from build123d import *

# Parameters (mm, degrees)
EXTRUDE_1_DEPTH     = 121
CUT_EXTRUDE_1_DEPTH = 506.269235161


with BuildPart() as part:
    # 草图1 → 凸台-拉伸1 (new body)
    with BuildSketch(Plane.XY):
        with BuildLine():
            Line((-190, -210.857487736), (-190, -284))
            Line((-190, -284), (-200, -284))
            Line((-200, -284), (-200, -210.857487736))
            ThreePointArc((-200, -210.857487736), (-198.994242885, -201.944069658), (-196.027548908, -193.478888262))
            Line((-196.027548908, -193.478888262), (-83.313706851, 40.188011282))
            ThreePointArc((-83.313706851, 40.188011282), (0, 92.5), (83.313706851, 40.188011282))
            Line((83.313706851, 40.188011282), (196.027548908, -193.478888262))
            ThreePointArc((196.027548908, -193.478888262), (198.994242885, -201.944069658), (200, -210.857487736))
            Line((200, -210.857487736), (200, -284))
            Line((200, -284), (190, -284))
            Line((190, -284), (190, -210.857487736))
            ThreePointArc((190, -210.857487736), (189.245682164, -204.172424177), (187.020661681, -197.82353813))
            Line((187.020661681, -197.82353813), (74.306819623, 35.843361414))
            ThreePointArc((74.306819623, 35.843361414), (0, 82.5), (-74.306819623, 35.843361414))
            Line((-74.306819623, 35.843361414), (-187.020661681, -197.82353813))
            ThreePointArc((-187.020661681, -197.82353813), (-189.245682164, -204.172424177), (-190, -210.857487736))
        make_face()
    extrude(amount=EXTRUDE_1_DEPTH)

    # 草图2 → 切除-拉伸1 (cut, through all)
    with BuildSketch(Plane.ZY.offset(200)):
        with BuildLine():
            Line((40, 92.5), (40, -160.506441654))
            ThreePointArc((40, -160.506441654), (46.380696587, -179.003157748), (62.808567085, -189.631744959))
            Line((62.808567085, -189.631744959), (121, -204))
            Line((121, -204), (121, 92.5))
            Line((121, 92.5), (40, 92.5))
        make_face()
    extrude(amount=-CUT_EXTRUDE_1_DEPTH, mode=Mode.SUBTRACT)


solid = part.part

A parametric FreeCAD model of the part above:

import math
import FreeCAD as App
import Part
import Sketcher
from FreeCAD import Vector

doc = App.newDocument("Part")
body = doc.addObject("PartDesign::Body", "Body")

# Sketch on XY plane
sketch1 = body.newObject("Sketcher::SketchObject", "Sketch")
sketch1.AttachmentSupport = (doc.getObject("XY_Plane"), [""])
sketch1.MapMode = "FlatFace"
sketch1.addGeometry(Part.LineSegment(Vector(-190, -284, 0), Vector(-190, -210.857488, 0)), False)
sketch1.addGeometry(Part.ArcOfCircle(Part.Circle(Vector(-160, -210.857488, 0), Vector(0, 0, 1), 30), math.radians(154.248745), math.radians(180)), False)
sketch1.addGeometry(Part.LineSegment(Vector(-187.020662, -197.823538, 0), Vector(-74.30682, 35.843361, 0)), False)
sketch1.addGeometry(Part.ArcOfCircle(Part.Circle(Vector(0, 0, 0), Vector(0, 0, 1), 82.5), math.radians(25.751255), math.radians(154.248745)), False)
sketch1.addGeometry(Part.LineSegment(Vector(74.30682, 35.843361, 0), Vector(187.020662, -197.823538, 0)), False)
sketch1.addGeometry(Part.ArcOfCircle(Part.Circle(Vector(160, -210.857488, 0), Vector(0, 0, 1), 30), math.radians(0), math.radians(25.751255)), False)
sketch1.addGeometry(Part.LineSegment(Vector(190, -210.857488, 0), Vector(190, -284, 0)), False)
sketch1.addGeometry(Part.LineSegment(Vector(190, -284, 0), Vector(200, -284, 0)), False)
sketch1.addGeometry(Part.LineSegment(Vector(200, -284, 0), Vector(200, -210.857488, 0)), False)
sketch1.addGeometry(Part.ArcOfCircle(Part.Circle(Vector(160, -210.857488, 0), Vector(0, 0, 1), 40), math.radians(0), math.radians(25.751255)), False)
sketch1.addGeometry(Part.LineSegment(Vector(196.027549, -193.478888, 0), Vector(83.313707, 40.188011, 0)), False)
sketch1.addGeometry(Part.ArcOfCircle(Part.Circle(Vector(0, 0, 0), Vector(0, 0, 1), 92.5), math.radians(25.751255), math.radians(154.248745)), False)
sketch1.addGeometry(Part.LineSegment(Vector(-83.313707, 40.188011, 0), Vector(-196.027549, -193.478888, 0)), False)
sketch1.addGeometry(Part.ArcOfCircle(Part.Circle(Vector(-160, -210.857488, 0), Vector(0, 0, 1), 40), math.radians(154.248745), math.radians(180)), False)
sketch1.addGeometry(Part.LineSegment(Vector(-200, -210.857488, 0), Vector(-200, -284, 0)), False)
sketch1.addGeometry(Part.LineSegment(Vector(-200, -284, 0), Vector(-190, -284, 0)), False)
sketch1.addConstraint(Sketcher.Constraint("Tangent", 0, 2, 1, 2))
sketch1.addConstraint(Sketcher.Constraint("Tangent", 1, 1, 2, 1))
sketch1.addConstraint(Sketcher.Constraint("Tangent", 2, 2, 3, 2))
sketch1.addConstraint(Sketcher.Constraint("Tangent", 3, 1, 4, 1))
sketch1.addConstraint(Sketcher.Constraint("Tangent", 4, 2, 5, 2))
sketch1.addConstraint(Sketcher.Constraint("Tangent", 5, 1, 6, 1))
sketch1.addConstraint(Sketcher.Constraint("Coincident", 6, 2, 7, 1))
sketch1.addConstraint(Sketcher.Constraint("Coincident", 7, 2, 8, 1))
sketch1.addConstraint(Sketcher.Constraint("Tangent", 8, 2, 9, 1))
sketch1.addConstraint(Sketcher.Constraint("Tangent", 9, 2, 10, 1))
sketch1.addConstraint(Sketcher.Constraint("Tangent", 10, 2, 11, 1))
sketch1.addConstraint(Sketcher.Constraint("Tangent", 11, 2, 12, 1))
sketch1.addConstraint(Sketcher.Constraint("Tangent", 12, 2, 13, 1))
sketch1.addConstraint(Sketcher.Constraint("Tangent", 13, 2, 14, 1))
sketch1.addConstraint(Sketcher.Constraint("Coincident", 14, 2, 15, 1))
sketch1.addConstraint(Sketcher.Constraint("Coincident", 15, 2, 0, 1))
sketch1.addConstraint(Sketcher.Constraint("Vertical", 0))
sketch1.addConstraint(Sketcher.Constraint("Vertical", 6))
sketch1.addConstraint(Sketcher.Constraint("Horizontal", 7))
sketch1.addConstraint(Sketcher.Constraint("Vertical", 8))
sketch1.addConstraint(Sketcher.Constraint("Vertical", 14))
sketch1.addConstraint(Sketcher.Constraint("Horizontal", 15))
sketch1.addConstraint(Sketcher.Constraint("Coincident", 3, 3, -1, 1))
sketch1.addConstraint(Sketcher.Constraint("Coincident", 11, 3, -1, 1))
sketch1.addConstraint(Sketcher.Constraint("Coincident", 9, 3, 5, 3))
sketch1.addConstraint(Sketcher.Constraint("Coincident", 13, 3, 1, 3))
sketch1.addConstraint(Sketcher.Constraint("Equal", 1, 5))
sketch1.addConstraint(Sketcher.Constraint("Equal", 9, 13))
sketch1.addConstraint(Sketcher.Constraint("Symmetric", 1, 3, 5, 3, -2))
sketch1.addConstraint(Sketcher.Constraint("Parallel", 4, 10))
sketch1.addConstraint(Sketcher.Constraint("Horizontal", 7, 2, 14, 2))
sketch1.addConstraint(Sketcher.Constraint("Radius", 1, 30.0))
sketch1.addConstraint(Sketcher.Constraint("Radius", 9, 40.0))
sketch1.addConstraint(Sketcher.Constraint("Radius", 3, 82.5))
sketch1.addConstraint(Sketcher.Constraint("DistanceX", 1, 3, -1, 1, 160.0))
sketch1.addConstraint(Sketcher.Constraint("DistanceY", 6, 2, -1, 1, 284.0))
sketch1.addConstraint(Sketcher.Constraint("DistanceY", 1, 1, 2, 2, 233.6669))
pad1 = body.newObject("PartDesign::Pad", "Pad")
pad1.Profile = sketch1
pad1.Length = 121

# Sketch on YZ plane
sketch2 = body.newObject("Sketcher::SketchObject", "Sketch001")
sketch2.AttachmentSupport = (doc.getObject("YZ_Plane"), [""])
sketch2.MapMode = "FlatFace"
sketch2.AttachmentOffset = App.Placement(Vector(0, 0, -200), App.Rotation())
sketch2.addGeometry(Part.LineSegment(Vector(92.5, 40, 0), Vector(-160.506442, 40, 0)), False)
sketch2.addGeometry(Part.ArcOfCircle(Part.Circle(Vector(-160.506442, 70, 0), Vector(0, 0, 1), 30), math.radians(-166.130314), math.radians(-90)), False)
sketch2.addGeometry(Part.LineSegment(Vector(-189.631745, 62.808567, 0), Vector(-204, 121, 0)), False)
sketch2.addGeometry(Part.LineSegment(Vector(-204, 121, 0), Vector(92.5, 121, 0)), False)
sketch2.addGeometry(Part.LineSegment(Vector(92.5, 121, 0), Vector(92.5, 40, 0)), False)
sketch2.addConstraint(Sketcher.Constraint("Tangent", 0, 2, 1, 2))
sketch2.addConstraint(Sketcher.Constraint("Tangent", 1, 1, 2, 1))
sketch2.addConstraint(Sketcher.Constraint("Coincident", 2, 2, 3, 1))
sketch2.addConstraint(Sketcher.Constraint("Coincident", 3, 2, 4, 1))
sketch2.addConstraint(Sketcher.Constraint("Coincident", 4, 2, 0, 1))
sketch2.addConstraint(Sketcher.Constraint("Horizontal", 0))
sketch2.addConstraint(Sketcher.Constraint("Horizontal", 3))
sketch2.addConstraint(Sketcher.Constraint("Vertical", 4))
sketch2.addConstraint(Sketcher.Constraint("Radius", 1, 30.0))
sketch2.addConstraint(Sketcher.Constraint("DistanceY", 4, 2, 4, 1, 81.0))
sketch2.addConstraint(Sketcher.Constraint("DistanceX", 3, 1, 3, 2, 296.5))
sketch2.addConstraint(Sketcher.Constraint("DistanceY", -1, 1, 1, 3, 70.0))
sketch2.addConstraint(Sketcher.Constraint("DistanceX", 2, 2, -1, 1, 204.0))
sketch2.addConstraint(Sketcher.Constraint("DistanceX", 0, 2, 0, 1, 253.006442))
pocket1 = body.newObject("PartDesign::Pocket", "Pocket")
pocket1.Profile = sketch2
pocket1.Type = "ThroughAll"
pocket1.Reversed = True

doc.recompute()
